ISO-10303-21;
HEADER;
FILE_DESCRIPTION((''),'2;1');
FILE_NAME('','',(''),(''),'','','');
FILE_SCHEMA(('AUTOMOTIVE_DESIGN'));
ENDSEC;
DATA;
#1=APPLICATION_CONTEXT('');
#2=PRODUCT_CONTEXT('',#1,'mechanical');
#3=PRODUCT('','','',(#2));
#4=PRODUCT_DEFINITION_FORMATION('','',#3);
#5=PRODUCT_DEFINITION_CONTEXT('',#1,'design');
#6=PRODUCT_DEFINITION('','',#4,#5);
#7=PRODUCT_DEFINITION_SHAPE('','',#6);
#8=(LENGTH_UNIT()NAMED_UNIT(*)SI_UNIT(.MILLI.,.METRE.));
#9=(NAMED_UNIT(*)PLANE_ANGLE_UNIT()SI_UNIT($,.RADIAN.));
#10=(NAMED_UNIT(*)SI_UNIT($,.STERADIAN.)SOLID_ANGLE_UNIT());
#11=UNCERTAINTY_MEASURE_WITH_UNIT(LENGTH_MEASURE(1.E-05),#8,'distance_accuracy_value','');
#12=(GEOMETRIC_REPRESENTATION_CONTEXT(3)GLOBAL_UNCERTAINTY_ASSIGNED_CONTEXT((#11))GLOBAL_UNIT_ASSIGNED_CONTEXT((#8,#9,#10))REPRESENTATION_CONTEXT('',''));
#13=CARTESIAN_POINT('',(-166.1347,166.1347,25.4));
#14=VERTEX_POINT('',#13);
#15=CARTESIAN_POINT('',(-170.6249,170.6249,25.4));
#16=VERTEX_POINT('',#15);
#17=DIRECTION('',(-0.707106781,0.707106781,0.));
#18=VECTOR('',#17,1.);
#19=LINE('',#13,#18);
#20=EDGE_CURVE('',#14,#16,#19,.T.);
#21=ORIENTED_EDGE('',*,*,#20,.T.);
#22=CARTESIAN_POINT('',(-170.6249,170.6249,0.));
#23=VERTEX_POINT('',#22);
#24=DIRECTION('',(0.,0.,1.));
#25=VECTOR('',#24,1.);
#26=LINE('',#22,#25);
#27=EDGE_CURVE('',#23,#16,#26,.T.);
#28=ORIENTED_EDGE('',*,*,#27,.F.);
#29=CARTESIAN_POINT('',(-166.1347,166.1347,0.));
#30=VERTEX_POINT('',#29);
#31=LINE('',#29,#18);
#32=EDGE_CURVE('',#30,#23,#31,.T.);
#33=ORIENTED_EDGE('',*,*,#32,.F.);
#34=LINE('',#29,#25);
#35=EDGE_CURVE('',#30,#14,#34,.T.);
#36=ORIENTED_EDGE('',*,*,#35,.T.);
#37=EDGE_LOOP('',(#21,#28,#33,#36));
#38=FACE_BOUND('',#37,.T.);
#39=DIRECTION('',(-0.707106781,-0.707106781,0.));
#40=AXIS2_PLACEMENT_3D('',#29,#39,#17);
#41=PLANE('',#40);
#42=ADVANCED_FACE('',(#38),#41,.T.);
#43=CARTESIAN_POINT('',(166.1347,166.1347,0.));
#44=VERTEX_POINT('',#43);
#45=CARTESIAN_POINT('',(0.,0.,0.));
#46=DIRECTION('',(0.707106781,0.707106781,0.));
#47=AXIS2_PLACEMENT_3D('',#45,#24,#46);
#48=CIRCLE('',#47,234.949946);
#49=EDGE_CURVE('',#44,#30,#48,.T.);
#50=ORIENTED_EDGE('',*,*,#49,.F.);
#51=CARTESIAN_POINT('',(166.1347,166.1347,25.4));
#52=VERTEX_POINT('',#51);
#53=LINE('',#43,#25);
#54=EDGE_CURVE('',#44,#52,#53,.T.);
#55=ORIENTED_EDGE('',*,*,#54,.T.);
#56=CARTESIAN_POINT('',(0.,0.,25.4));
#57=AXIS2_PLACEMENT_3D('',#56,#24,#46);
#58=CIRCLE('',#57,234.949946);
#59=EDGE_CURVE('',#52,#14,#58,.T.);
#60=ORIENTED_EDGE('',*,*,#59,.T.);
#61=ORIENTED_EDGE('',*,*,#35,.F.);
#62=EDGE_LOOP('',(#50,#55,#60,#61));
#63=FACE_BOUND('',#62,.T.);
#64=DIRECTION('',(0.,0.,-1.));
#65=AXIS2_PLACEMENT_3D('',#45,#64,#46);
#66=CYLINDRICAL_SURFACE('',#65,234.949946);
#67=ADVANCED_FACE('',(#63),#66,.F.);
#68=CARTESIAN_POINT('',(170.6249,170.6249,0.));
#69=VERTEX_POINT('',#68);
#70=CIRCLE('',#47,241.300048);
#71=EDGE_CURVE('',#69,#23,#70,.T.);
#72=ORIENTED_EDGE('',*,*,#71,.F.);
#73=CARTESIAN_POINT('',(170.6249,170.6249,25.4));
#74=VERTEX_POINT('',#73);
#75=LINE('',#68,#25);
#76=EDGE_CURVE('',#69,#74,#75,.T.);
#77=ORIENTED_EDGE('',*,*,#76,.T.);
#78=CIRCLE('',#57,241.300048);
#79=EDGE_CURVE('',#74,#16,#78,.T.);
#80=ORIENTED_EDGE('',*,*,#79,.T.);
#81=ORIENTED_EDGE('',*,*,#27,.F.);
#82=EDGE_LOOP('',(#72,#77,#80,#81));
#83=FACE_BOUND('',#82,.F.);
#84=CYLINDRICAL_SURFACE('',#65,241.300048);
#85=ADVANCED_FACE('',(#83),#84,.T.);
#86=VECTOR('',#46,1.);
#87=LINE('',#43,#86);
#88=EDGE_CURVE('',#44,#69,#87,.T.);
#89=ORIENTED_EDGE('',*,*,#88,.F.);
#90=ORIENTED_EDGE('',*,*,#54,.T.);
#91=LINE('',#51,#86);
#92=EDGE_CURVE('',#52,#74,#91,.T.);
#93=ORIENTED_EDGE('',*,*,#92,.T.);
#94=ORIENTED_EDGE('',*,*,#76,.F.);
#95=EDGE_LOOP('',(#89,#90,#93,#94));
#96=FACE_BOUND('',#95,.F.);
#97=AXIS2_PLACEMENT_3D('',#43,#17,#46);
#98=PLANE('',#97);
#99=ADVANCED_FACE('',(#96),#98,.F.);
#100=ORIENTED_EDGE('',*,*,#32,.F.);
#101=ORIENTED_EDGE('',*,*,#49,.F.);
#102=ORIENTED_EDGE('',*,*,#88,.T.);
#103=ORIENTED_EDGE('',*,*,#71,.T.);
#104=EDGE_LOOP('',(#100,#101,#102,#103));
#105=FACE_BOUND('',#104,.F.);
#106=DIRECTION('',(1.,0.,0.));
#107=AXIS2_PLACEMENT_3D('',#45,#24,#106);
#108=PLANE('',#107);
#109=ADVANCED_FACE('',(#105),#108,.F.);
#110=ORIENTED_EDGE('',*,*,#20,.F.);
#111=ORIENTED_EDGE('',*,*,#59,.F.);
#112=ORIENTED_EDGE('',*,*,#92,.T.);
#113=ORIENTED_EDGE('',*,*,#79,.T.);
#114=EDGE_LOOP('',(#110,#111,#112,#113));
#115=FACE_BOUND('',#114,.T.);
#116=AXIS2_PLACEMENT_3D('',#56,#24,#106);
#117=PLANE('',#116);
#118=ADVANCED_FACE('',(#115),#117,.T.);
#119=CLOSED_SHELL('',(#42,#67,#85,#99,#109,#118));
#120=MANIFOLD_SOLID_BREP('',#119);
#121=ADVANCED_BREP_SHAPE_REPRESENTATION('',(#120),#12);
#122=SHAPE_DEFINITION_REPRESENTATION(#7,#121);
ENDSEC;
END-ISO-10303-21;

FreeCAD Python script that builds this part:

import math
import FreeCAD as App
import Part
import Sketcher

V = App.Vector
Q = App.Units.Quantity

doc = App.newDocument("Part")
body = doc.addObject("PartDesign::Body", "Body")

# Sketch on XY plane
sketch1 = doc.addObject("Sketcher::SketchObject", "Sketch")
body.addObject(sketch1)
sketch1.AttachmentSupport = (doc.XY_Plane, [""])
sketch1.MapMode = "FlatFace"
sketch1.addGeometry(Part.ArcOfCircle(Part.Circle(V(0, 0, 0), V(0, 0, 1), 235), math.radians(45), math.radians(135)), False)
sketch1.addGeometry(Part.LineSegment(V(166, 166, 0), V(171, 171, 0)), False)
sketch1.addGeometry(Part.ArcOfCircle(Part.Circle(V(0, 0, 0), V(0, 0, 1), 241), math.radians(45), math.radians(135)), False)
sketch1.addGeometry(Part.LineSegment(V(-171, 171, 0), V(-166, 166, 0)), False)
sketch1.addConstraint(Sketcher.Constraint("Coincident", 0, 1, 1, 1))
sketch1.addConstraint(Sketcher.Constraint("Coincident", 1, 2, 2, 1))
sketch1.addConstraint(Sketcher.Constraint("Coincident", 2, 2, 3, 1))
sketch1.addConstraint(Sketcher.Constraint("Coincident", 3, 2, 0, 2))
sketch1.addConstraint(Sketcher.Constraint("Coincident", 0, 3, -1, 1))
sketch1.addConstraint(Sketcher.Constraint("Coincident", 2, 3, -1, 1))
sketch1.addConstraint(Sketcher.Constraint("Perpendicular", 1, 3))
sketch1.addConstraint(Sketcher.Constraint("Horizontal", 1, 2, 2, 2))
sketch1.addConstraint(Sketcher.Constraint("Horizontal", 0, 1, 3, 2))
sketch1.addConstraint(Sketcher.Constraint("Radius", 2, Q("9.5 in")))
sketch1.addConstraint(Sketcher.Constraint("Radius", 0, Q("9.25 in")))
sketch1.addConstraint(Sketcher.Constraint("DistanceX", -1, 1, 0, 1, Q("166.1347 mm")))
pad1 = doc.addObject("PartDesign::Pad", "Pad")
body.addObject(pad1)
pad1.Profile = sketch1
pad1.Length = Q("1 in")

doc.recompute()
